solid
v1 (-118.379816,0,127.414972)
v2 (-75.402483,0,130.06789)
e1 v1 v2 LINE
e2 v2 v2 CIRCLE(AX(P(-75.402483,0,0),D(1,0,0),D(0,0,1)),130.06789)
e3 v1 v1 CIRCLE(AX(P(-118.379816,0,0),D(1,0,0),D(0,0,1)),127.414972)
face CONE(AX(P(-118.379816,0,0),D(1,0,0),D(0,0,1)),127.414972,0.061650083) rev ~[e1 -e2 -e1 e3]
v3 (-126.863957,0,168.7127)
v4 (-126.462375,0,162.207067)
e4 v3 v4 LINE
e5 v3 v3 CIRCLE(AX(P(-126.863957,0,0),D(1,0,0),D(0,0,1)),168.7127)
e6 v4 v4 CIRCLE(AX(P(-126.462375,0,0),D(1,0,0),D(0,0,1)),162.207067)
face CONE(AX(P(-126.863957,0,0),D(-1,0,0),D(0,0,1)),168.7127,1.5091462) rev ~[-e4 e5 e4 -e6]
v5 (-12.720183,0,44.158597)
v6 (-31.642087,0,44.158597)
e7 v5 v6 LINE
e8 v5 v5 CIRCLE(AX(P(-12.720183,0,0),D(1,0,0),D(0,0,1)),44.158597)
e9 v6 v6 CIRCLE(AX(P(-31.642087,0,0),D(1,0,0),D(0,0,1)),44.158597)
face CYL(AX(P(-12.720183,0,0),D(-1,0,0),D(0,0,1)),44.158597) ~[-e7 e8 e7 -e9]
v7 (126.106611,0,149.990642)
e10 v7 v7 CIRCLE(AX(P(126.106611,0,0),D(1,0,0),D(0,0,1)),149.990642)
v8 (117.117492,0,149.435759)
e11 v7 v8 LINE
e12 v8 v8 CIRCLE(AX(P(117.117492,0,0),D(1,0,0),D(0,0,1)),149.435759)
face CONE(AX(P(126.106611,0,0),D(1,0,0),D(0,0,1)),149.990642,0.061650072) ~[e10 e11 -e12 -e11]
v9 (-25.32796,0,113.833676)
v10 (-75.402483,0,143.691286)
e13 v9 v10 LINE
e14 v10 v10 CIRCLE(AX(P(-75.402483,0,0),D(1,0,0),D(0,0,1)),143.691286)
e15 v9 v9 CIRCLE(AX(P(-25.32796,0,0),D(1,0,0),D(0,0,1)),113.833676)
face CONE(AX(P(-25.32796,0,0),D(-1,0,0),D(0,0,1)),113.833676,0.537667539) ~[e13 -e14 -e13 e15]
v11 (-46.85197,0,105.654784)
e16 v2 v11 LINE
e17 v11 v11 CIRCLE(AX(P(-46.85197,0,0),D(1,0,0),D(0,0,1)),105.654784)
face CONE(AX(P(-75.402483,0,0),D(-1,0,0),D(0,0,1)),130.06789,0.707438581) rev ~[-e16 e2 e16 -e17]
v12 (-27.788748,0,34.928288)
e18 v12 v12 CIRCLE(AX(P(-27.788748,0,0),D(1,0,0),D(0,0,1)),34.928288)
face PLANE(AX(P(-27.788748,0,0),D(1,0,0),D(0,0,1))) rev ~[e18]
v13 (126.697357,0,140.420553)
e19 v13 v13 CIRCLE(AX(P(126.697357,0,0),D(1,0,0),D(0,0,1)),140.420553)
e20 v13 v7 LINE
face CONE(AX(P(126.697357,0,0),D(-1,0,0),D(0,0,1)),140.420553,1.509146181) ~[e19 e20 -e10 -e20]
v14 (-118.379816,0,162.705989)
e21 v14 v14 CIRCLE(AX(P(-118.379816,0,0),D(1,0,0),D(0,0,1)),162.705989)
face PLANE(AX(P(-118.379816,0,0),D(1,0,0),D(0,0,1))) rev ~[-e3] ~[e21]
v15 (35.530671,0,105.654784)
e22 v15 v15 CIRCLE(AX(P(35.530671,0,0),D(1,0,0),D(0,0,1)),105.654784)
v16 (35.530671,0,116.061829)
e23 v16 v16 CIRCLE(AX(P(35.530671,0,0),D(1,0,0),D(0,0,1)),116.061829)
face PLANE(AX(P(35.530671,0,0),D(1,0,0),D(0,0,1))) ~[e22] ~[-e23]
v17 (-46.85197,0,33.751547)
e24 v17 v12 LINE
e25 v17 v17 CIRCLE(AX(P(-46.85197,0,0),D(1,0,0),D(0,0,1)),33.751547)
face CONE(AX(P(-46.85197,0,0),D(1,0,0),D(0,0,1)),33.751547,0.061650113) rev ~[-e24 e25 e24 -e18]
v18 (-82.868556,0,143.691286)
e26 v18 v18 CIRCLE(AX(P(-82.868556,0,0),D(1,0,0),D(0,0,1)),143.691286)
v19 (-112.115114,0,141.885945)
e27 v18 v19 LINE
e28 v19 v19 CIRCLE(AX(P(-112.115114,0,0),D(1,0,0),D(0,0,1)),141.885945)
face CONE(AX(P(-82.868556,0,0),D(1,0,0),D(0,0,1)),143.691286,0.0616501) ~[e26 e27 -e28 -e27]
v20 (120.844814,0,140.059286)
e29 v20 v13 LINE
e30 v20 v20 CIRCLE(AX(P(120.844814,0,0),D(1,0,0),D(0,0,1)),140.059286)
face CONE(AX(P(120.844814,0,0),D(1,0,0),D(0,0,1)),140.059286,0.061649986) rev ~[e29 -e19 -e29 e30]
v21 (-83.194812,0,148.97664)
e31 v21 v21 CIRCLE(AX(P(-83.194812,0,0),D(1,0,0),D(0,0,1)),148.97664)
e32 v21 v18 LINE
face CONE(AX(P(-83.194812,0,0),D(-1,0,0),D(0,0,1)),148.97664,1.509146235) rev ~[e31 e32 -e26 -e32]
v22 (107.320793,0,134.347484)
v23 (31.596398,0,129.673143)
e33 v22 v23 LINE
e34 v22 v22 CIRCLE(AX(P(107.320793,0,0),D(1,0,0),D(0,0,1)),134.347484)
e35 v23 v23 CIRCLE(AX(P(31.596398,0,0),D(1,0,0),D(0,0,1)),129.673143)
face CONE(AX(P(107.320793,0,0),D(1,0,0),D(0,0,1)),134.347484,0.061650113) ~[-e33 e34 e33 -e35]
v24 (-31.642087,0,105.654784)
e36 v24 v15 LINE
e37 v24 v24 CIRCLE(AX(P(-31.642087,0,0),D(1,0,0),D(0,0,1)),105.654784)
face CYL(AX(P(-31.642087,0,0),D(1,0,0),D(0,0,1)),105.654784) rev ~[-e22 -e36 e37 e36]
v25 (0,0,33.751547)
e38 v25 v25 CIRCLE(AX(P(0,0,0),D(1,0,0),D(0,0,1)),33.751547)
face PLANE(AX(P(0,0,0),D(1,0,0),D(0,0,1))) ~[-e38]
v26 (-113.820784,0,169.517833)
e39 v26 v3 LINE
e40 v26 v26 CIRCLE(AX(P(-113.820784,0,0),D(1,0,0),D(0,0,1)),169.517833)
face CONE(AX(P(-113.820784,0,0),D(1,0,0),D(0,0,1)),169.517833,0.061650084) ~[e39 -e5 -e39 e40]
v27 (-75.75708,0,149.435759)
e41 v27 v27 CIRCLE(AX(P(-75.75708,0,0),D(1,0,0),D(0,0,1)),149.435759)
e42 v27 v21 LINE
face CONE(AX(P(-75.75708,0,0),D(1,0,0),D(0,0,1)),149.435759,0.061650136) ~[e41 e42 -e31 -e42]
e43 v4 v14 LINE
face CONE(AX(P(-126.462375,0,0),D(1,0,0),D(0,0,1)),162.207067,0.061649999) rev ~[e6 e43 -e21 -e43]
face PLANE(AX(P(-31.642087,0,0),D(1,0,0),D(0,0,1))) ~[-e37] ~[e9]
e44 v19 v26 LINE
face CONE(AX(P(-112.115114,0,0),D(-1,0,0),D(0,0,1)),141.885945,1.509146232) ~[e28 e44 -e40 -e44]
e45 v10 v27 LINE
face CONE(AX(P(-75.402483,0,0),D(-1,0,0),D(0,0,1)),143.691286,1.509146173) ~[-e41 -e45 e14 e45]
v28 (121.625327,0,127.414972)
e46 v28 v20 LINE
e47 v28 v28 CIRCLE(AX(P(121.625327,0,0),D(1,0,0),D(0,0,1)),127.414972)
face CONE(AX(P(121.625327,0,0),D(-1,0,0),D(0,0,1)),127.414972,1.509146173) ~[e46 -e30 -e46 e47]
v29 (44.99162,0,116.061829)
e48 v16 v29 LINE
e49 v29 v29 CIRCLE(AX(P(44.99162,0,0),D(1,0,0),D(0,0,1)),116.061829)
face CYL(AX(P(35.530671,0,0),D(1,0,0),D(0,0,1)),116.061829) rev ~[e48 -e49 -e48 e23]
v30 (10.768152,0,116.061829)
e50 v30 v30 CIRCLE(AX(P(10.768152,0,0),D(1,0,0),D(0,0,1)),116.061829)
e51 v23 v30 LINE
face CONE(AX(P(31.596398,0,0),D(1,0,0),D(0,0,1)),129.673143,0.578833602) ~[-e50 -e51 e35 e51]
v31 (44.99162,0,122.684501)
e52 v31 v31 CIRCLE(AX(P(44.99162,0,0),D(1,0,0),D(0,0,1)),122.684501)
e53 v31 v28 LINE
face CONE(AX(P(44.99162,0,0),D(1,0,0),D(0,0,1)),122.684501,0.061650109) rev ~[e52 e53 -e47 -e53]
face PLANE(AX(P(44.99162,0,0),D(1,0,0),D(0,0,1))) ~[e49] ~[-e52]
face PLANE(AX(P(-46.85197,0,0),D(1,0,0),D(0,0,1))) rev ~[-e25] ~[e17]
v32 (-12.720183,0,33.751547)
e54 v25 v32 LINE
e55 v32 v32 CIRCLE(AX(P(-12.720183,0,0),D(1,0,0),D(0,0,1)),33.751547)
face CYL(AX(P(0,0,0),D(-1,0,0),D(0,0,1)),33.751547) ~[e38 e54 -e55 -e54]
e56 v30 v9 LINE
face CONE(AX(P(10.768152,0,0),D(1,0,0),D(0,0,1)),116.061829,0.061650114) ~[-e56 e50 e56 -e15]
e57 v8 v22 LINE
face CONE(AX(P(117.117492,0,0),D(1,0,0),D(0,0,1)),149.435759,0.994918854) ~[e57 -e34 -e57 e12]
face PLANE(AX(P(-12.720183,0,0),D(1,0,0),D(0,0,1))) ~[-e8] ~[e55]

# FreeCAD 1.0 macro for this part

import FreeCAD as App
import Part
import Sketcher

V = App.Vector
Q = App.Units.Quantity


def add_polygon(sketch, points):
    """Adds a closed chain of lines whose ends are joined by coincident constraints."""
    first, n = sketch.GeometryCount, len(points)
    for a, b in zip(points, points[1:] + points[:1]):
        sketch.addGeometry(Part.LineSegment(App.Vector(*a, 0), App.Vector(*b, 0)), False)
    for i in range(n):
        sketch.addConstraint(Sketcher.Constraint("Coincident", first + i, 2, first + (i + 1) % n, 1))

doc = App.newDocument("Part")
body = doc.addObject("PartDesign::Body", "Body")

# Sketch on XZ plane
sketch1 = body.newObject("Sketcher::SketchObject", "Sketch")
sketch1.AttachmentSupport = (doc.getObject("XZ_Plane"), [""])
sketch1.MapMode = "FlatFace"
add_polygon(sketch1, [(-28, 0), (0, 0), (0, 34), (-13, 34), (-13, 44), (-32, 44), (-32, 106), (36, 106), (36, 116), (45, 116), (45, 123), (122, 127), (121, 140), (127, 140), (126, 150), (117, 149), (107, 134), (32, 130), (11, 116), (-25, 114), (-75, 144), (-76, 149), (-83, 149), (-83, 144), (-112, 142), (-114, 170), (-127, 169), (-126, 162), (-118, 163), (-118, 127), (-75, 130), (-47, 106), (-47, 34), (-28, 35)])  # lines 0-33
sketch1.addConstraint(Sketcher.Constraint("Horizontal", 0))
sketch1.addConstraint(Sketcher.Constraint("Vertical", 1))
sketch1.addConstraint(Sketcher.Constraint("Horizontal", 2))
sketch1.addConstraint(Sketcher.Constraint("Vertical", 3))
sketch1.addConstraint(Sketcher.Constraint("Horizontal", 4))
sketch1.addConstraint(Sketcher.Constraint("Vertical", 5))
sketch1.addConstraint(Sketcher.Constraint("Horizontal", 6))
sketch1.addConstraint(Sketcher.Constraint("Vertical", 7))
sketch1.addConstraint(Sketcher.Constraint("Horizontal", 8))
sketch1.addConstraint(Sketcher.Constraint("Vertical", 9))
sketch1.addConstraint(Sketcher.Constraint("Vertical", 28))
sketch1.addConstraint(Sketcher.Constraint("Vertical", 31))
sketch1.addConstraint(Sketcher.Constraint("Vertical", 33))
sketch1.addConstraint(Sketcher.Constraint("Coincident", 0, 2, -1, 1))
sketch1.addConstraint(Sketcher.Constraint("Perpendicular", 10, 11))
sketch1.addConstraint(Sketcher.Constraint("Perpendicular", 11, 12))
sketch1.addConstraint(Sketcher.Constraint("Perpendicular", 12, 13))
sketch1.addConstraint(Sketcher.Constraint("Perpendicular", 13, 14))
sketch1.addConstraint(Sketcher.Constraint("Parallel", 14, 16))
sketch1.addConstraint(Sketcher.Constraint("Parallel", 16, 18))
sketch1.addConstraint(Sketcher.Constraint("Perpendicular", 18, 20))
sketch1.addConstraint(Sketcher.Constraint("Perpendicular", 20, 21))
sketch1.addConstraint(Sketcher.Constraint("Perpendicular", 21, 22))
sketch1.addConstraint(Sketcher.Constraint("Perpendicular", 22, 23))
sketch1.addConstraint(Sketcher.Constraint("Perpendicular", 23, 24))
sketch1.addConstraint(Sketcher.Constraint("Perpendicular", 24, 25))
sketch1.addConstraint(Sketcher.Constraint("Perpendicular", 25, 26))
sketch1.addConstraint(Sketcher.Constraint("Perpendicular", 26, 27))
sketch1.addConstraint(Sketcher.Constraint("Parallel", 27, 29))
sketch1.addConstraint(Sketcher.Constraint("Parallel", 29, 32))
sketch1.addConstraint(Sketcher.Constraint("Horizontal", 8, 2, 17, 2))
sketch1.addConstraint(Sketcher.Constraint("Horizontal", 14, 2, 20, 2))
sketch1.addConstraint(Sketcher.Constraint("Horizontal", 19, 2, 22, 2))
sketch1.addConstraint(Sketcher.Constraint("Horizontal", 10, 2, 28, 2))
sketch1.addConstraint(Sketcher.Constraint("Horizontal", 6, 2, 30, 2))
sketch1.addConstraint(Sketcher.Constraint("Horizontal", 2, 2, 31, 2))
sketch1.addConstraint(Sketcher.Constraint("Vertical", 19, 2, 29, 2))
sketch1.addConstraint(Sketcher.Constraint("Distance", 25, Q("13.067999 mm")))
sketch1.addConstraint(Sketcher.Constraint("DistanceX", 6, 1, 6, 2, Q("67.172758 mm")))
sketch1.addConstraint(Sketcher.Constraint("DistanceX", 8, 1, 8, 2, Q("9.460949 mm")))
sketch1.addConstraint(Sketcher.Constraint("DistanceY", 3, 1, 3, 2, Q("10.40705 mm")))
sketch1.addConstraint(Sketcher.Constraint("DistanceY", 9, 1, 9, 2, Q("6.622672 mm")))
sketch1.addConstraint(Sketcher.Constraint("DistanceY", 33, 2, 33, 1, Q("34.928288 mm")))
sketch1.addConstraint(Sketcher.Constraint("DistanceY", -1, 1, 9, 2, Q("122.684501 mm")))
sketch1.addConstraint(Sketcher.Constraint("DistanceX", -1, 1, 16, 2, Q("31.596398 mm")))
sketch1.addConstraint(Sketcher.Constraint("DistanceY", -1, 1, 25, 2, Q("168.7127 mm")))
sketch1.addConstraint(Sketcher.Constraint("DistanceY", 6, 2, 11, 2, Q("34.404502 mm")))
sketch1.addConstraint(Sketcher.Constraint("DistanceY", 15, 2, 11, 2, Q("5.711802 mm")))
sketch1.addConstraint(Sketcher.Constraint("DistanceX", 15, 2, 14, 2, Q("9.796699 mm")))
sketch1.addConstraint(Sketcher.Constraint("DistanceY", 5, 2, 19, 2, Q("38.036502 mm")))
sketch1.addConstraint(Sketcher.Constraint("DistanceX", 24, 2, 19, 2, Q("38.418301 mm")))
sketch1.addConstraint(Sketcher.Constraint("DistanceX", 25, 2, 22, 2, Q("43.995401 mm")))
sketch1.addConstraint(Sketcher.Constraint("DistanceX", 27, 2, 23, 2, Q("6.264702 mm")))
sketch1.addConstraint(Sketcher.Constraint("Distance", 10, Q("76.77957 mm")))
sketch1.addConstraint(Sketcher.Constraint("Distance", 11, Q("12.668381 mm")))
sketch1.addConstraint(Sketcher.Constraint("Distance", 14, Q("9.006229 mm")))
sketch1.addConstraint(Sketcher.Constraint("Distance", 21, Q("7.451889 mm")))
sketch1.addConstraint(Sketcher.Constraint("Distance", 30, Q("37.565031 mm")))
sketch1.addConstraint(Sketcher.Constraint("DistanceX", 0, 1, 0, 2, Q("27.788748 mm")))
sketch1.addConstraint(Sketcher.Constraint("DistanceX", 2, 2, 2, 1, Q("12.720183 mm")))
sketch1.addConstraint(Sketcher.Constraint("DistanceX", 4, 2, 4, 1, Q("18.921904 mm")))
sketch1.addConstraint(Sketcher.Constraint("DistanceY", 1, 1, 1, 2, Q("33.751547 mm")))
sketch1.addConstraint(Sketcher.Constraint("DistanceY", 28, 2, 28, 1, Q("35.291017 mm")))
sketch1.addConstraint(Sketcher.Constraint("DistanceX", -1, 1, 13, 2, Q("126.106611 mm")))
sketch1.addConstraint(Sketcher.Constraint("DistanceY", -1, 1, 13, 2, Q("149.990642 mm")))
sketch1.addConstraint(Sketcher.Constraint("DistanceX", 18, 2, -1, 1, Q("25.32796 mm")))
sketch1.addConstraint(Sketcher.Constraint("DistanceX", 17, 2, 7, 2, Q("24.762519 mm")))
revolution = body.newObject("PartDesign::Revolution", "Revolution")
revolution.Profile = sketch1
revolution.ReferenceAxis = (sketch1, ["H_Axis"])
revolution.Angle = 360

doc.recompute()
